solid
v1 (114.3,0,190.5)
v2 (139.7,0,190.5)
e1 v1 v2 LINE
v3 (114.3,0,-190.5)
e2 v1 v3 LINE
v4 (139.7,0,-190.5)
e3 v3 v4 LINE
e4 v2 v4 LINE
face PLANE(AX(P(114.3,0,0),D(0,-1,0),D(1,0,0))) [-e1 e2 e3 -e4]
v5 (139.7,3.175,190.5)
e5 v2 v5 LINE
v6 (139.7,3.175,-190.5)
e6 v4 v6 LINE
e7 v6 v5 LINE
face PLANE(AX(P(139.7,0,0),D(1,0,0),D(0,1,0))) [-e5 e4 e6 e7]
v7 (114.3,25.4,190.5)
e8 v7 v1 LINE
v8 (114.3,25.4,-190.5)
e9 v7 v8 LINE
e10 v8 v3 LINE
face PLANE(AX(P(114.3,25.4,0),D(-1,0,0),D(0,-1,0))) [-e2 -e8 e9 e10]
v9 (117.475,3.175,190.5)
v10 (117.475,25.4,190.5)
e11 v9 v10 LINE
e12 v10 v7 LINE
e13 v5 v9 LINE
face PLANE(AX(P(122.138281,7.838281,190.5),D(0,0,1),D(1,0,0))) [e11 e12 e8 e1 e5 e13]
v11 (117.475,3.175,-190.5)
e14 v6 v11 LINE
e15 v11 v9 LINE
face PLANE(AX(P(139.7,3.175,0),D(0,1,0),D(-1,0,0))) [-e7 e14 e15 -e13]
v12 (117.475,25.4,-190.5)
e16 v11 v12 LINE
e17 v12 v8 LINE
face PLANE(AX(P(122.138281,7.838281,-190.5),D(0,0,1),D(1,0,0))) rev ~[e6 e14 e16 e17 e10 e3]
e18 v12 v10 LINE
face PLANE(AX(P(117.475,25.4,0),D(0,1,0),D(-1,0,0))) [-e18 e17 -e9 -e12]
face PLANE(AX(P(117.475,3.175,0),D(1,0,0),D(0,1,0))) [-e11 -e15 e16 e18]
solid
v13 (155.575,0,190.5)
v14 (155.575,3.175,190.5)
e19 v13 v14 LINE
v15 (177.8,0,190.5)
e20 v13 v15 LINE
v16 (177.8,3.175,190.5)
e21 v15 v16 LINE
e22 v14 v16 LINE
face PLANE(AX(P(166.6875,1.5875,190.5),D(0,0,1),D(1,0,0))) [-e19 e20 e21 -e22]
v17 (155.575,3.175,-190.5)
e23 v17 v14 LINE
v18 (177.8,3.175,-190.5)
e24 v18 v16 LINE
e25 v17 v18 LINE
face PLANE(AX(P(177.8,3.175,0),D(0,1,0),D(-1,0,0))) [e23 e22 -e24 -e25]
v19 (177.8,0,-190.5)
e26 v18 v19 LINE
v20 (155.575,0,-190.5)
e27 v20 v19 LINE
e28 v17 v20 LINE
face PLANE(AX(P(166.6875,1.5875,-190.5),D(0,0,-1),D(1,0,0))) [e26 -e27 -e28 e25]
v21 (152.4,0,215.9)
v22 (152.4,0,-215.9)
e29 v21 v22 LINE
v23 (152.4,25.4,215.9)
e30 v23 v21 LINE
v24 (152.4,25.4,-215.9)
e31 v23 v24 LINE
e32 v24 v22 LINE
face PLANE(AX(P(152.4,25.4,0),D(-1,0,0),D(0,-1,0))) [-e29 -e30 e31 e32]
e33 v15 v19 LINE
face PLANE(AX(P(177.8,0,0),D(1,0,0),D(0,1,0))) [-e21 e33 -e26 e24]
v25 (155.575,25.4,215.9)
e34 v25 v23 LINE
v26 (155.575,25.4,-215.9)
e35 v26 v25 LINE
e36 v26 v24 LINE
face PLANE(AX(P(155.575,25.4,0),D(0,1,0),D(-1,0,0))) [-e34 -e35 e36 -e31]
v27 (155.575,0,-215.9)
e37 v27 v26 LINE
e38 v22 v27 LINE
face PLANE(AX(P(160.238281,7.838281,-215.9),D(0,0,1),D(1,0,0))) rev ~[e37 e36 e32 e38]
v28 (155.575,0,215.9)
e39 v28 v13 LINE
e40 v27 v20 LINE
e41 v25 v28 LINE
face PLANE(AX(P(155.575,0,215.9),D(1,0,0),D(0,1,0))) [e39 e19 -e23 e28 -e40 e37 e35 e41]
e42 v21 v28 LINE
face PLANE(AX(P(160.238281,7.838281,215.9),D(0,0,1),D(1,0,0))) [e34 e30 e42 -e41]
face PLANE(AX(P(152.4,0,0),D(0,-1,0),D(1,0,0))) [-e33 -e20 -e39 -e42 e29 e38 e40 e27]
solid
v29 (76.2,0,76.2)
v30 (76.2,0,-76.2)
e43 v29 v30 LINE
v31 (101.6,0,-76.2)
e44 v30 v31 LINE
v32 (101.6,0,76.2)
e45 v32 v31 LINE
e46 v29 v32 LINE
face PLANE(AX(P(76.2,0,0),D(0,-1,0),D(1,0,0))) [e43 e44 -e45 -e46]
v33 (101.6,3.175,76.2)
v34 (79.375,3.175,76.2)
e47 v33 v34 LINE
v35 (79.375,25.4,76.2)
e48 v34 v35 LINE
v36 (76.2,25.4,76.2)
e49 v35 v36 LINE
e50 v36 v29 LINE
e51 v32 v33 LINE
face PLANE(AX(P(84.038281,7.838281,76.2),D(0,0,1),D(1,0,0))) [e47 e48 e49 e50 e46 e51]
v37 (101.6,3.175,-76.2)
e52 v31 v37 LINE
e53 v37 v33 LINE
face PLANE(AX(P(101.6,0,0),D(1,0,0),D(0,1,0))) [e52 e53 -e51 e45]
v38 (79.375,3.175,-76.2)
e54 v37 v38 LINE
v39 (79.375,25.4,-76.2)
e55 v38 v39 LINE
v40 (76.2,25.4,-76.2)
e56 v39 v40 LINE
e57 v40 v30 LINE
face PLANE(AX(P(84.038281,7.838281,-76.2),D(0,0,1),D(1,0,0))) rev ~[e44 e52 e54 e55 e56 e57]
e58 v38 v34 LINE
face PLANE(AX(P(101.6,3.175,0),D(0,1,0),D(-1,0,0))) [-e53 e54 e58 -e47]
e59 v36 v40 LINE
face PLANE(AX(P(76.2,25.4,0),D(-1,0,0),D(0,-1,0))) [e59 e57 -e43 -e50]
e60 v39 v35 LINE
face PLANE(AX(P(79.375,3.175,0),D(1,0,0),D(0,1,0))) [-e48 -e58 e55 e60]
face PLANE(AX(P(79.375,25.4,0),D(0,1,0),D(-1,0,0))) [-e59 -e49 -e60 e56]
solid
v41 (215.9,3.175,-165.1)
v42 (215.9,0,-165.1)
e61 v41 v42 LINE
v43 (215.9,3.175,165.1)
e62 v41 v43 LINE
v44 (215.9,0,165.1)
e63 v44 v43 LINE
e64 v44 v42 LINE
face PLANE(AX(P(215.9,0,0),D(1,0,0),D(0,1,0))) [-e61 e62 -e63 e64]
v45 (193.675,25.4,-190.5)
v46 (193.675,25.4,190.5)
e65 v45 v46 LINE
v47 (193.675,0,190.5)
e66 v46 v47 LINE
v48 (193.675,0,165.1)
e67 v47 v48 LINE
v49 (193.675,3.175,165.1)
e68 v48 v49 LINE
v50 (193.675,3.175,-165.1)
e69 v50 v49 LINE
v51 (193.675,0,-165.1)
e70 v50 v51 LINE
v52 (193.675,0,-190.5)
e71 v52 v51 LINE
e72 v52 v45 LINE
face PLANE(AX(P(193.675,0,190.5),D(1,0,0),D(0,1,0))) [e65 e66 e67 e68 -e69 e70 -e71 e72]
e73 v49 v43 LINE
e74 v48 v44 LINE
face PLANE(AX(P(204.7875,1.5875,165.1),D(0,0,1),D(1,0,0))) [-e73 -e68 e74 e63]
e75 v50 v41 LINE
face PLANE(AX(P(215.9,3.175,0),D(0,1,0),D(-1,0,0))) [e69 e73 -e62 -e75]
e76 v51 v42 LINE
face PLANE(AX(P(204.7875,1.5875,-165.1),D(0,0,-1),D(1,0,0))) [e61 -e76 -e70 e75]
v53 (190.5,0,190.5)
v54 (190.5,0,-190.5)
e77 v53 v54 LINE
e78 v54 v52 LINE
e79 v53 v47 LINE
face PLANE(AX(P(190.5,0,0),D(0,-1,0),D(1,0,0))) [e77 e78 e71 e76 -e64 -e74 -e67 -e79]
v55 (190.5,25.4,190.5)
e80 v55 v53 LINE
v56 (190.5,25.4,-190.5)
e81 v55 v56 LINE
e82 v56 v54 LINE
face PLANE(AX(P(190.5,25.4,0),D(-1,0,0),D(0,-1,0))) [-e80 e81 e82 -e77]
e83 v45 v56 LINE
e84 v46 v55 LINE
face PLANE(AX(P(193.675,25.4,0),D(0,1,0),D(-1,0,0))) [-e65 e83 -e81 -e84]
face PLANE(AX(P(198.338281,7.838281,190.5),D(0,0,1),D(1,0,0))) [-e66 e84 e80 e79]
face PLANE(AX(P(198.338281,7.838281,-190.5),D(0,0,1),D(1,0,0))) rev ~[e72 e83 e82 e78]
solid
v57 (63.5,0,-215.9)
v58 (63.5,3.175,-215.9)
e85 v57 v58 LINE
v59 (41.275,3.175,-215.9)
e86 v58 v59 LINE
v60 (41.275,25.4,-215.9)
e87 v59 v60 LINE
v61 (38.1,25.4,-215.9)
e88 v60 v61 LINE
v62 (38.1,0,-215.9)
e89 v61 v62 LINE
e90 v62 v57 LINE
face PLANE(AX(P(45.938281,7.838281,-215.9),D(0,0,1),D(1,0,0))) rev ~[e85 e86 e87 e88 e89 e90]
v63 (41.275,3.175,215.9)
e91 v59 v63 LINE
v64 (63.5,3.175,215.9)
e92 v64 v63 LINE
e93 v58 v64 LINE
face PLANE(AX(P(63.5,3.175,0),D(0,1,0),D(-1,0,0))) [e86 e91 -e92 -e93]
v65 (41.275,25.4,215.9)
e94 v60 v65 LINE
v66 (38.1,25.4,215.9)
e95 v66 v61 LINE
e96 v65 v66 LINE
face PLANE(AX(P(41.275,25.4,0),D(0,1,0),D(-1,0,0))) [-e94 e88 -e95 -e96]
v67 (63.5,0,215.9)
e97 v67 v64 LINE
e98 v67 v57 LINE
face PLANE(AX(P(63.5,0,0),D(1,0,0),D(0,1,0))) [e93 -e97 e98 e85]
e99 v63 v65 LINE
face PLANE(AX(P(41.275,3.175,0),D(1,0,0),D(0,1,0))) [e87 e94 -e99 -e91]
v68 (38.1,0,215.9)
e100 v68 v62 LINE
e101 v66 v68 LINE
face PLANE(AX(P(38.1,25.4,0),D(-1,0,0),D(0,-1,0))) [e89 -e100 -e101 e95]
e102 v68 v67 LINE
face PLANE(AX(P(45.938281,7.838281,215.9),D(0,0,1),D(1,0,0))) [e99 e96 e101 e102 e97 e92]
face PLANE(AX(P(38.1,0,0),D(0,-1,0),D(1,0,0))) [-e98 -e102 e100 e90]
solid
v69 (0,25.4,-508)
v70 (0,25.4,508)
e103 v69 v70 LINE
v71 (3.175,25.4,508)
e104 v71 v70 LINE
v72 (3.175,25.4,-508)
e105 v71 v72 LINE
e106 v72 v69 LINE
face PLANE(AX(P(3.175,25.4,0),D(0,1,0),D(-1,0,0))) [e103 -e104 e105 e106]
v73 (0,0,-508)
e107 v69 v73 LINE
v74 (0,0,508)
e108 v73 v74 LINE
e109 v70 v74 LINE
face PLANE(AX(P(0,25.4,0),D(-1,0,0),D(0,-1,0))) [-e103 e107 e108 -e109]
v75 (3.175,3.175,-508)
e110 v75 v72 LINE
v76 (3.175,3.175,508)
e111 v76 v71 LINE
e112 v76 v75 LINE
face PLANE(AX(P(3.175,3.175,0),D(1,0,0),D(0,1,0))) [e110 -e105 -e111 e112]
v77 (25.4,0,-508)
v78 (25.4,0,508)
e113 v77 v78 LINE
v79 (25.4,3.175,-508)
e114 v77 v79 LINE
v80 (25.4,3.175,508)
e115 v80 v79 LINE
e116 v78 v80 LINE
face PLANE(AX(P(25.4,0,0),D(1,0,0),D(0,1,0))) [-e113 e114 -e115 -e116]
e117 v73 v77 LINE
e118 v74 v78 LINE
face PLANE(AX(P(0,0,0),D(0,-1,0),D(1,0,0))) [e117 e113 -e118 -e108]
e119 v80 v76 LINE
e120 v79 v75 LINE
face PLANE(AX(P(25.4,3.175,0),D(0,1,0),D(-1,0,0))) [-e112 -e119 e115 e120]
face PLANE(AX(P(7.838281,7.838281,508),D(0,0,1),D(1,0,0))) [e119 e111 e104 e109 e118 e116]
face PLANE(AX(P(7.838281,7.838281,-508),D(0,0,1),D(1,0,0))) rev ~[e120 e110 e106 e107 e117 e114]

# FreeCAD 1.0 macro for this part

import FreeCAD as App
import Part
import Sketcher
from FreeCAD import Vector
Q = App.Units.Quantity


def add_polygon(sketch, points):
    """Adds a closed chain of lines whose ends are joined by coincident constraints."""
    first, n = sketch.GeometryCount, len(points)
    for a, b in zip(points, points[1:] + points[:1]):
        sketch.addGeometry(Part.LineSegment(App.Vector(*a, 0), App.Vector(*b, 0)), False)
    for i in range(n):
        sketch.addConstraint(Sketcher.Constraint("Coincident", first + i, 2, first + (i + 1) % n, 1))

doc = App.newDocument("Part")
body = doc.addObject("PartDesign::Body", "Body")

# Sketch on XY plane
sketch1 = body.newObject("Sketcher::SketchObject", "Sketch")
sketch1.AttachmentSupport = (doc.getObject("XY_Plane"), [""])
sketch1.MapMode = "FlatFace"
add_polygon(sketch1, [(3.2, 25.4), (0, 25.4), (0, 0), (25.4, 0), (25.4, 3.2), (3.2, 3.2)])  # lines 0-5
sketch1.addConstraint([
    Sketcher.Constraint("Horizontal", 0),
    Sketcher.Constraint("Vertical", 1),
    Sketcher.Constraint("Horizontal", 2),
    Sketcher.Constraint("Vertical", 3),
    Sketcher.Constraint("Horizontal", 4),
    Sketcher.Constraint("Vertical", 5),
    Sketcher.Constraint("Coincident", 1, 2, -1, 1),
    Sketcher.Constraint("Equal", 2, 1),
    Sketcher.Constraint("Equal", 0, 3),
    Sketcher.Constraint("DistanceX", 2, 1, 2, 2, Q("1 in")),
    Sketcher.Constraint("DistanceX", 0, 2, 0, 1, Q("0.125 in")),
])
pad1 = body.newObject("PartDesign::Pad", "Pad")
pad1.Profile = sketch1
pad1.Length = Q("40 in")
pad1.Midplane = True
body2 = doc.addObject("PartDesign::Body", "Body001")

# Sketch on XY plane
sketch2 = body2.newObject("Sketcher::SketchObject", "Sketch001")
sketch2.AttachmentSupport = (doc.getObject("XY_Plane001"), [""])
sketch2.MapMode = "FlatFace"
add_polygon(sketch2, [(63.5, 0), (63.5, 3.2), (41.3, 3.2), (41.3, 25.4), (38.1, 25.4), (38.1, 0)])  # lines 0-5
sketch2.addConstraint([
    Sketcher.Constraint("Vertical", 0),
    Sketcher.Constraint("Horizontal", 1),
    Sketcher.Constraint("Vertical", 2),
    Sketcher.Constraint("Horizontal", 3),
    Sketcher.Constraint("Vertical", 4),
    Sketcher.Constraint("Horizontal", 5),
    Sketcher.Constraint("PointOnObject", 4, 2, -1),
    Sketcher.Constraint("Equal", 3, 0),
    Sketcher.Constraint("Equal", 1, 2),
    Sketcher.Constraint("DistanceX", 5, 1, 5, 2, Q("1 in")),
    Sketcher.Constraint("DistanceX", -1, 1, 0, 2, Q("2.5 in")),
    Sketcher.Constraint("DistanceX", 1, 2, 1, 1, Q("0.875 in")),
])
pad2 = body2.newObject("PartDesign::Pad", "Pad001")
pad2.Profile = sketch2
pad2.Length = Q("17 in")
pad2.Midplane = True
body3 = doc.addObject("PartDesign::Body", "Body002")

# Sketch on XY plane
sketch3 = body3.newObject("Sketcher::SketchObject", "Sketch002")
sketch3.AttachmentSupport = (doc.getObject("XY_Plane002"), [""])
sketch3.MapMode = "FlatFace"
add_polygon(sketch3, [(101.6, 0), (101.6, 3.2), (79.4, 3.2), (79.4, 25.4), (76.2, 25.4), (76.2, 0)])  # lines 0-5
sketch3.addConstraint([
    Sketcher.Constraint("Vertical", 0),
    Sketcher.Constraint("Horizontal", 1),
    Sketcher.Constraint("Vertical", 2),
    Sketcher.Constraint("Horizontal", 3),
    Sketcher.Constraint("Vertical", 4),
    Sketcher.Constraint("Horizontal", 5),
    Sketcher.Constraint("PointOnObject", 4, 2, -1),
    Sketcher.Constraint("Equal", 3, 0),
    Sketcher.Constraint("Equal", 1, 2),
    Sketcher.Constraint("DistanceX", 5, 1, 5, 2, Q("1 in")),
    Sketcher.Constraint("DistanceX", -1, 1, 0, 2, Q("4 in")),
    Sketcher.Constraint("DistanceX", 1, 2, 1, 1, Q("0.875 in")),
])
pad3 = body3.newObject("PartDesign::Pad", "Pad002")
pad3.Profile = sketch3
pad3.Length = Q("6 in")
pad3.Midplane = True
body4 = doc.addObject("PartDesign::Body", "Body003")

# Sketch on XY plane
sketch4 = body4.newObject("Sketcher::SketchObject", "Sketch003")
sketch4.AttachmentSupport = (doc.getObject("XY_Plane003"), [""])
sketch4.MapMode = "FlatFace"
add_polygon(sketch4, [(139.7, 0), (139.7, 3.2), (117.5, 3.2), (117.5, 25.4), (114.3, 25.4), (114.3, 0)])  # lines 0-5
sketch4.addConstraint([
    Sketcher.Constraint("Vertical", 0),
    Sketcher.Constraint("Horizontal", 1),
    Sketcher.Constraint("Vertical", 2),
    Sketcher.Constraint("Horizontal", 3),
    Sketcher.Constraint("Vertical", 4),
    Sketcher.Constraint("Horizontal", 5),
    Sketcher.Constraint("PointOnObject", 4, 2, -1),
    Sketcher.Constraint("Equal", 3, 0),
    Sketcher.Constraint("Equal", 1, 2),
    Sketcher.Constraint("DistanceX", 5, 1, 5, 2, Q("1 in")),
    Sketcher.Constraint("DistanceX", -1, 1, 0, 2, Q("5.5 in")),
    Sketcher.Constraint("DistanceX", 1, 2, 1, 1, Q("0.875 in")),
])
pad4 = body4.newObject("PartDesign::Pad", "Pad003")
pad4.Profile = sketch4
pad4.Length = Q("15 in")
pad4.Midplane = True
body5 = doc.addObject("PartDesign::Body", "Body004")

# Sketch on XY plane
sketch5 = body5.newObject("Sketcher::SketchObject", "Sketch004")
sketch5.AttachmentSupport = (doc.getObject("XY_Plane004"), [""])
sketch5.MapMode = "FlatFace"
add_polygon(sketch5, [(177.8, 0), (177.8, 3.2), (155.6, 3.2), (155.6, 25.4), (152.4, 25.4), (152.4, 0)])  # lines 0-5
sketch5.addConstraint([
    Sketcher.Constraint("Vertical", 0),
    Sketcher.Constraint("Horizontal", 1),
    Sketcher.Constraint("Vertical", 2),
    Sketcher.Constraint("Horizontal", 3),
    Sketcher.Constraint("Vertical", 4),
    Sketcher.Constraint("Horizontal", 5),
    Sketcher.Constraint("PointOnObject", 4, 2, -1),
    Sketcher.Constraint("Equal", 3, 0),
    Sketcher.Constraint("Equal", 1, 2),
    Sketcher.Constraint("DistanceX", 5, 1, 5, 2, Q("1 in")),
    Sketcher.Constraint("DistanceX", -1, 1, 0, 2, Q("7 in")),
    Sketcher.Constraint("DistanceX", 1, 2, 1, 1, Q("0.875 in")),
])
pad5 = body5.newObject("PartDesign::Pad", "Pad004")
pad5.Profile = sketch5
pad5.Length = Q("17 in")
pad5.Midplane = True

# Sketch on XY plane
sketch6 = body5.newObject("Sketcher::SketchObject", "Sketch005")
sketch6.AttachmentSupport = (doc.getObject("XY_Plane004"), [""])
sketch6.MapMode = "FlatFace"
sketch6.AttachmentOffset = App.Placement(Vector(0, 0, -8.5 * 25.4), App.Rotation())
add_polygon(sketch6, [(155.6, 0), (155.6, 3.2), (177.8, 3.2), (177.8, 0)])  # lines 0-3
sketch6.addConstraint([
    Sketcher.Constraint("Vertical", 0),
    Sketcher.Constraint("Horizontal", 1),
    Sketcher.Constraint("Vertical", 2),
    Sketcher.Constraint("Horizontal", 3),
    Sketcher.Constraint("PointOnObject", 2, 2, -1),
    Sketcher.Constraint("DistanceX", -1, 1, 1, 2, Q("7 in")),
    Sketcher.Constraint("DistanceX", 1, 1, 1, 2, Q("0.875 in")),
    Sketcher.Constraint("DistanceY", 0, 1, 0, 2, Q("0.125 in")),
])
pocket1 = body5.newObject("PartDesign::Pocket", "Pocket")
pocket1.Profile = sketch6
pocket1.Length = Q("1 in")
pocket1.Reversed = True

# Sketch on XY plane
sketch7 = body5.newObject("Sketcher::SketchObject", "Sketch006")
sketch7.AttachmentSupport = (doc.getObject("XY_Plane004"), [""])
sketch7.MapMode = "FlatFace"
sketch7.AttachmentOffset = App.Placement(Vector(0, 0, 8.5 * 25.4), App.Rotation())
add_polygon(sketch7, [(155.6, 3.2), (155.6, 0), (177.8, 0), (177.8, 3.2)])  # lines 0-3
sketch7.addConstraint([
    Sketcher.Constraint("Vertical", 0),
    Sketcher.Constraint("Horizontal", 1),
    Sketcher.Constraint("Vertical", 2),
    Sketcher.Constraint("Horizontal", 3),
    Sketcher.Constraint("PointOnObject", 0, 2, -1),
    Sketcher.Constraint("DistanceX", -1, 1, 1, 2, Q("7 in")),
    Sketcher.Constraint("DistanceX", 1, 1, 1, 2, Q("0.875 in")),
    Sketcher.Constraint("DistanceY", 0, 2, 0, 1, Q("0.125 in")),
])
pocket2 = body5.newObject("PartDesign::Pocket", "Pocket001")
pocket2.Profile = sketch7
pocket2.Length = Q("1 in")
body6 = doc.addObject("PartDesign::Body", "Body005")

# Sketch on XY plane
sketch8 = body6.newObject("Sketcher::SketchObject", "Sketch007")
sketch8.AttachmentSupport = (doc.getObject("XY_Plane005"), [""])
sketch8.MapMode = "FlatFace"
add_polygon(sketch8, [(215.9, 0), (215.9, 3.2), (193.7, 3.2), (193.7, 25.4), (190.5, 25.4), (190.5, 0)])  # lines 0-5
sketch8.addConstraint([
    Sketcher.Constraint("Vertical", 0),
    Sketcher.Constraint("Horizontal", 1),
    Sketcher.Constraint("Vertical", 2),
    Sketcher.Constraint("Horizontal", 3),
    Sketcher.Constraint("Vertical", 4),
    Sketcher.Constraint("Horizontal", 5),
    Sketcher.Constraint("PointOnObject", 4, 2, -1),
    Sketcher.Constraint("Equal", 3, 0),
    Sketcher.Constraint("Equal", 1, 2),
    Sketcher.Constraint("DistanceX", 5, 1, 5, 2, Q("1 in")),
    Sketcher.Constraint("DistanceX", -1, 1, 0, 2, Q("8.5 in")),
    Sketcher.Constraint("DistanceX", 1, 2, 1, 1, Q("0.875 in")),
])
pad6 = body6.newObject("PartDesign::Pad", "Pad005")
pad6.Profile = sketch8
pad6.Length = Q("15 in")
pad6.Midplane = True

# Sketch on XY plane
sketch9 = body6.newObject("Sketcher::SketchObject", "Sketch008")
sketch9.AttachmentSupport = (doc.getObject("XY_Plane005"), [""])
sketch9.MapMode = "FlatFace"
sketch9.AttachmentOffset = App.Placement(Vector(0, 0, -7.5 * 25.4), App.Rotation())
add_polygon(sketch9, [(193.7, 0), (193.7, 3.2), (215.9, 3.2), (215.9, 0)])  # lines 0-3
sketch9.addConstraint([
    Sketcher.Constraint("Vertical", 0),
    Sketcher.Constraint("Horizontal", 1),
    Sketcher.Constraint("Vertical", 2),
    Sketcher.Constraint("Horizontal", 3),
    Sketcher.Constraint("PointOnObject", 2, 2, -1),
    Sketcher.Constraint("DistanceX", -1, 1, 1, 2, Q("8.5 in")),
    Sketcher.Constraint("DistanceX", 1, 1, 1, 2, Q("0.875 in")),
    Sketcher.Constraint("DistanceY", 0, 1, 0, 2, Q("0.125 in")),
])
pocket3 = body6.newObject("PartDesign::Pocket", "Pocket002")
pocket3.Profile = sketch9
pocket3.Length = Q("1 in")
pocket3.Reversed = True

# Sketch on XY plane
sketch10 = body6.newObject("Sketcher::SketchObject", "Sketch009")
sketch10.AttachmentSupport = (doc.getObject("XY_Plane005"), [""])
sketch10.MapMode = "FlatFace"
sketch10.AttachmentOffset = App.Placement(Vector(0, 0, 7.5 * 25.4), App.Rotation())
add_polygon(sketch10, [(193.7, 3.2), (193.7, 0), (215.9, 0), (215.9, 3.2)])  # lines 0-3
sketch10.addConstraint([
    Sketcher.Constraint("Vertical", 0),
    Sketcher.Constraint("Horizontal", 1),
    Sketcher.Constraint("Vertical", 2),
    Sketcher.Constraint("Horizontal", 3),
    Sketcher.Constraint("PointOnObject", 0, 2, -1),
    Sketcher.Constraint("DistanceX", -1, 1, 1, 2, Q("8.5 in")),
    Sketcher.Constraint("DistanceX", 1, 1, 1, 2, Q("0.875 in")),
    Sketcher.Constraint("DistanceY", 0, 2, 0, 1, Q("0.125 in")),
])
pocket4 = body6.newObject("PartDesign::Pocket", "Pocket003")
pocket4.Profile = sketch10
pocket4.Length = Q("1 in")

doc.recompute()
